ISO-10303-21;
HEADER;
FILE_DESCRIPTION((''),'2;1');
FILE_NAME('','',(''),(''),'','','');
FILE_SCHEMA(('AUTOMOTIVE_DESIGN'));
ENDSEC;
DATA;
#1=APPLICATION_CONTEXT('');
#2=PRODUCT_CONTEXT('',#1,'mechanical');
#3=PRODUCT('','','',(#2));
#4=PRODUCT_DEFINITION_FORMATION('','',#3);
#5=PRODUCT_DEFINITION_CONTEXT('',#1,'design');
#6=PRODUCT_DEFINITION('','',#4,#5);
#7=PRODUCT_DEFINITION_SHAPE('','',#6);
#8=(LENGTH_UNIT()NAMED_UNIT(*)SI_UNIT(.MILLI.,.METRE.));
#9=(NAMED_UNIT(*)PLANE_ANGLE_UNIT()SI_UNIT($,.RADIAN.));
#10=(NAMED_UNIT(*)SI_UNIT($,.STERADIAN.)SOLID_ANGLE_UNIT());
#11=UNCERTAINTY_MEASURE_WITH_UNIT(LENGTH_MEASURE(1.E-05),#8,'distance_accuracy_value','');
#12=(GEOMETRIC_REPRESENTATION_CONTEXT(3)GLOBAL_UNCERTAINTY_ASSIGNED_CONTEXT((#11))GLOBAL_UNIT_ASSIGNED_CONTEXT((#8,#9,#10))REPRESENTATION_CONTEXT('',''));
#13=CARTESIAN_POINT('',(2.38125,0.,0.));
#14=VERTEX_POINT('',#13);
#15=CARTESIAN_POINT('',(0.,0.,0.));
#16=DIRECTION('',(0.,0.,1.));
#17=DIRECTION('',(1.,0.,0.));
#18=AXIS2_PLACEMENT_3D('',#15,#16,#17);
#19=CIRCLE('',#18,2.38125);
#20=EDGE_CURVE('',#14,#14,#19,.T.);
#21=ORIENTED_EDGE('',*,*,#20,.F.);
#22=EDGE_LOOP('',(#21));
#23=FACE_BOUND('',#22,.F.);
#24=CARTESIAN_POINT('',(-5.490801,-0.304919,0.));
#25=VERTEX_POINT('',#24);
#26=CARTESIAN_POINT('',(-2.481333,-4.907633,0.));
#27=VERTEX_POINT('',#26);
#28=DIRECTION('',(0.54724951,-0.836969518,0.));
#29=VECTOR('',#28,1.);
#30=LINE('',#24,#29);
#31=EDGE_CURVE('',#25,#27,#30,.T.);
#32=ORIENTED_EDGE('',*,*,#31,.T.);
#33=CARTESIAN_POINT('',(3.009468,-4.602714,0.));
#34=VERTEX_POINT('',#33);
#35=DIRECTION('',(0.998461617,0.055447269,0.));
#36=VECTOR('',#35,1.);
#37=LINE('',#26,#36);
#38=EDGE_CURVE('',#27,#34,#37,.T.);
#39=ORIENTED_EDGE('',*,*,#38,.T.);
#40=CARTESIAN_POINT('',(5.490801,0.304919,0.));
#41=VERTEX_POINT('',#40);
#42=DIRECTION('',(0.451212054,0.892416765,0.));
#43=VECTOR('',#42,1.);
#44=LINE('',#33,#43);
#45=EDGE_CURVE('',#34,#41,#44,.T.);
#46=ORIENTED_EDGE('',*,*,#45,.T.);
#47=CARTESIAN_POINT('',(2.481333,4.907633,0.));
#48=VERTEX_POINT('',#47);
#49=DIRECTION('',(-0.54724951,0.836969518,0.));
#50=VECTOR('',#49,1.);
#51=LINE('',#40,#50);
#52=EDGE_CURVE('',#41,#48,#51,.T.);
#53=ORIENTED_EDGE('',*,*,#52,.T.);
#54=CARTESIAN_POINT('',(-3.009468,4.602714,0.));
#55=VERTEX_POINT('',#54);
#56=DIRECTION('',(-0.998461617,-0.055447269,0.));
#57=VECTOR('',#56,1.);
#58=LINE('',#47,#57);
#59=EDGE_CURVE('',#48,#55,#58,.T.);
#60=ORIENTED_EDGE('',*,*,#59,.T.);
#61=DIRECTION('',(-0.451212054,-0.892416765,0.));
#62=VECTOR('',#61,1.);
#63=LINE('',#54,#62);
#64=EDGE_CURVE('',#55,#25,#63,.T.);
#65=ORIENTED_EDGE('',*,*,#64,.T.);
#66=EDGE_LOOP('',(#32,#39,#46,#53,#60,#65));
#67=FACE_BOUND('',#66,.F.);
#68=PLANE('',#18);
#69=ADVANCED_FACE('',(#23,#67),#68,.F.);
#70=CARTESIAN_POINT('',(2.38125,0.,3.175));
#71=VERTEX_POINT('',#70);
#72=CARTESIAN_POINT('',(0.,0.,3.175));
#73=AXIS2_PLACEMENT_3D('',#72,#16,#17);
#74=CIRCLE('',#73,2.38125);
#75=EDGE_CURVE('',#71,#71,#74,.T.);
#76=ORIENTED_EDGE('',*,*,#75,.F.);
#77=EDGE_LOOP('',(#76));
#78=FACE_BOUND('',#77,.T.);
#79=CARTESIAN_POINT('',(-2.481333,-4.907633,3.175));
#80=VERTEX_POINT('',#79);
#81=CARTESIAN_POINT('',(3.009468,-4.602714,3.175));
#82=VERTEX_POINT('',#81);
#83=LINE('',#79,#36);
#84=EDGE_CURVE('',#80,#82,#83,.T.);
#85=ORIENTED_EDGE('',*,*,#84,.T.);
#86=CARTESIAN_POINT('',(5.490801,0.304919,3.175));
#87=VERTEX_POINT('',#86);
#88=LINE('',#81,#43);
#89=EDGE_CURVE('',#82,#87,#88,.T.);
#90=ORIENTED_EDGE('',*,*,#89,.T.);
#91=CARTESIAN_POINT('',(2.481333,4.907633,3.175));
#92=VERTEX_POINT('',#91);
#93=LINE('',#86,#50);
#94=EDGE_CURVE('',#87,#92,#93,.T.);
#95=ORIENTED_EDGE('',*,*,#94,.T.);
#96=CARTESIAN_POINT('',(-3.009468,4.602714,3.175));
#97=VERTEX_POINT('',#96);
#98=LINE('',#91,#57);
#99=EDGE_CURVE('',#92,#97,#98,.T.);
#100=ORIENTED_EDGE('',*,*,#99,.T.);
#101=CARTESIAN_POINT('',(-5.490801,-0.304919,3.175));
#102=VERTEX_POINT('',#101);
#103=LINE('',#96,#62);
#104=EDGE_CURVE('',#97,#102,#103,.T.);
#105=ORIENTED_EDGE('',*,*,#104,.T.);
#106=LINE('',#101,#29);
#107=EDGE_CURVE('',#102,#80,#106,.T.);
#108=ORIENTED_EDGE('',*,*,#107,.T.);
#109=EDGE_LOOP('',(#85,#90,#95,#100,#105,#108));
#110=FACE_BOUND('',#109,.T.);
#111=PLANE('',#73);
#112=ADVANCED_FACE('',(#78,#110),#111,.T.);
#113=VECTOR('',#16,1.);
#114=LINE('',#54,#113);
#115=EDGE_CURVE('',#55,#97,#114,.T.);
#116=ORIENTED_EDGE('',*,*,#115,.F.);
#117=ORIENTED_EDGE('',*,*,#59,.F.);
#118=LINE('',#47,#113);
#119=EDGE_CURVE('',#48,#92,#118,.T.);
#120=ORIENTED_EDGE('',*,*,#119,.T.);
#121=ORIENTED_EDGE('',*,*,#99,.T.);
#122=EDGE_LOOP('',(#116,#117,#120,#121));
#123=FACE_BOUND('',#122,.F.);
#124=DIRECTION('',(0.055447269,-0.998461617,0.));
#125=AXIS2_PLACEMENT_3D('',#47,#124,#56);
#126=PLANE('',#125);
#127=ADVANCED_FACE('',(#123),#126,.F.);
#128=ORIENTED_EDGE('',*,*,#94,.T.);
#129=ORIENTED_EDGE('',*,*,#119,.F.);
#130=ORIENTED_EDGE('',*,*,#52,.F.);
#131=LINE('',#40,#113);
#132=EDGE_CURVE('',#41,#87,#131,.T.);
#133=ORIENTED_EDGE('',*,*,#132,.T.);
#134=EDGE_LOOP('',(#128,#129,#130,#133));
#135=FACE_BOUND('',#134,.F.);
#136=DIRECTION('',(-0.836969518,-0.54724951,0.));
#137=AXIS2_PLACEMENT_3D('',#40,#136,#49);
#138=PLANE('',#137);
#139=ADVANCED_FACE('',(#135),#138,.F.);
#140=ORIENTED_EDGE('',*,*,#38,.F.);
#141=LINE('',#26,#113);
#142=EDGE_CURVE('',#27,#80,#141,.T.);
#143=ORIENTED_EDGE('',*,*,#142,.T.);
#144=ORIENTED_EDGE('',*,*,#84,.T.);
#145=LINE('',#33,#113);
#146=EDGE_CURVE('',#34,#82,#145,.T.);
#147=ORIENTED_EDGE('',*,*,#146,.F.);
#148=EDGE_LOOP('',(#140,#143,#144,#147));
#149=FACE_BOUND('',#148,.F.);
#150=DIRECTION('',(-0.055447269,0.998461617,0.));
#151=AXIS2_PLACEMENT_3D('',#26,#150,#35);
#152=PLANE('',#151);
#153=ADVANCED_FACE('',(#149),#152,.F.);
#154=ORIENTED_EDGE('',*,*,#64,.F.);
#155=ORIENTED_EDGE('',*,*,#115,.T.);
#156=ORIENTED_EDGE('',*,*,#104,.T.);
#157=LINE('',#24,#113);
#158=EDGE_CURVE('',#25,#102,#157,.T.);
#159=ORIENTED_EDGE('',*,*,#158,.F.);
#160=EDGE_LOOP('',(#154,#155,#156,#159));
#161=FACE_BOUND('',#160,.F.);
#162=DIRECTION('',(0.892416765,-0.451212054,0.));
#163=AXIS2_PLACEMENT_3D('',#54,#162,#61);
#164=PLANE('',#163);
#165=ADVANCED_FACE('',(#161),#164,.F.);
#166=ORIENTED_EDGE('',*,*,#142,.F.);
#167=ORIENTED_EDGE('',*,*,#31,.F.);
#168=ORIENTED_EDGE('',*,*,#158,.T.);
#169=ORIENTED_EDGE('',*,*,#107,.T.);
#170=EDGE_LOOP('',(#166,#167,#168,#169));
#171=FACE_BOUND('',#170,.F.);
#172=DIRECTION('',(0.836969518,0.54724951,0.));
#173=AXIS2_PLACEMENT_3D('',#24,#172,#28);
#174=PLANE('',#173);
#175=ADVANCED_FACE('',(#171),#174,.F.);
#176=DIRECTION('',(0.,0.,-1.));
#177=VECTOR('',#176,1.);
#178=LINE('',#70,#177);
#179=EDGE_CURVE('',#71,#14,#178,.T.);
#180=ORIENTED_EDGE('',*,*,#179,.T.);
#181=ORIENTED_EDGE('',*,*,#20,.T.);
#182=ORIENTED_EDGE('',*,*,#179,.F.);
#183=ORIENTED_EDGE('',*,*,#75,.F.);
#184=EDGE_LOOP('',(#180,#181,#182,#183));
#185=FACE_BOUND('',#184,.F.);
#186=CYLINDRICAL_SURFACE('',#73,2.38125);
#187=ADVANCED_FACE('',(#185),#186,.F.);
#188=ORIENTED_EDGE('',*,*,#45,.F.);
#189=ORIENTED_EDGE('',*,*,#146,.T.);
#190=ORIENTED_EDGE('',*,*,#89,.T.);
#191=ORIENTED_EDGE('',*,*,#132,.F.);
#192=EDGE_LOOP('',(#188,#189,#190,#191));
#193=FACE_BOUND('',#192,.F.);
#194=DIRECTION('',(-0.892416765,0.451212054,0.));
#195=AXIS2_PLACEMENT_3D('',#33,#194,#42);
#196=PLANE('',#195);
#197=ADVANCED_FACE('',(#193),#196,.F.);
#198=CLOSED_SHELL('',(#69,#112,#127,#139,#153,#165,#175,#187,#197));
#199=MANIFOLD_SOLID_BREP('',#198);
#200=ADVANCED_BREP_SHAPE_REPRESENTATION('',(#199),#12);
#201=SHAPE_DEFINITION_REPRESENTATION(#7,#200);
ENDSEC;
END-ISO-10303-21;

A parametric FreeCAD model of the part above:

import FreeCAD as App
import Part
import Sketcher
from FreeCAD import Vector
Q = App.Units.Quantity


def add_polygon(sketch, points):
    """Adds a closed chain of lines whose ends are joined by coincident constraints."""
    first, n = sketch.GeometryCount, len(points)
    for a, b in zip(points, points[1:] + points[:1]):
        sketch.addGeometry(Part.LineSegment(App.Vector(*a, 0), App.Vector(*b, 0)), False)
    for i in range(n):
        sketch.addConstraint(Sketcher.Constraint("Coincident", first + i, 2, first + (i + 1) % n, 1))

doc = App.newDocument("Part")
body = doc.addObject("PartDesign::Body", "Body")

sketch1 = body.newObject("Sketcher::SketchObject", "Sketch")
sketch1.AttachmentSupport = (doc.getObject("XY_Plane"), [""])
sketch1.MapMode = "FlatFace"
add_polygon(sketch1, [(5, 0), (2, 5), (-3, 5), (-5, 0), (-2, -5), (3, -5)])
sketch1.addConstraint(Sketcher.Constraint("Symmetric", 0, 2, 3, 2, -1, 1))
sketch1.addConstraint(Sketcher.Constraint("Symmetric", 1, 2, 4, 2, -1, 1))
sketch1.addConstraint(Sketcher.Constraint("Symmetric", 2, 2, 5, 2, -1, 1))
sketch1.addConstraint(Sketcher.Constraint("Equal", 0, 1))
sketch1.addConstraint(Sketcher.Constraint("Equal", 1, 2))
sketch1.addConstraint(Sketcher.Constraint("DistanceX", 2, 2, -1, 1, 5.490801))
sketch1.addConstraint(Sketcher.Constraint("DistanceX", 1, 2, 0, 2, 5.490801))
sketch1.addConstraint(Sketcher.Constraint("Distance", 0, 5.499261))
sketch1.addConstraint(Sketcher.Constraint("DistanceX", 1, 2, -1, 1, 3.009468))
pad1 = body.newObject("PartDesign::Pad", "Pad")
pad1.Profile = sketch1
pad1.Length = Q("0.125 in")

sketch2 = body.newObject("Sketcher::SketchObject", "Sketch001")
sketch2.AttachmentSupport = (doc.getObject("XY_Plane"), [""])
sketch2.MapMode = "FlatFace"
sketch2.AttachmentOffset = App.Placement(Vector(0, 0, 0.125 * 25.4), App.Rotation())
sketch2.addGeometry(Part.Circle(Vector(0, 0, 0), Vector(0, 0, 1), 2.4), False)
sketch2.addConstraint(Sketcher.Constraint("Coincident", 0, 3, -1, 1))
sketch2.addConstraint(Sketcher.Constraint("Diameter", 0, Q("0.1875 in")))
pocket1 = body.newObject("PartDesign::Pocket", "Pocket")
pocket1.Profile = sketch2
pocket1.Type = "ThroughAll"

doc.recompute()
